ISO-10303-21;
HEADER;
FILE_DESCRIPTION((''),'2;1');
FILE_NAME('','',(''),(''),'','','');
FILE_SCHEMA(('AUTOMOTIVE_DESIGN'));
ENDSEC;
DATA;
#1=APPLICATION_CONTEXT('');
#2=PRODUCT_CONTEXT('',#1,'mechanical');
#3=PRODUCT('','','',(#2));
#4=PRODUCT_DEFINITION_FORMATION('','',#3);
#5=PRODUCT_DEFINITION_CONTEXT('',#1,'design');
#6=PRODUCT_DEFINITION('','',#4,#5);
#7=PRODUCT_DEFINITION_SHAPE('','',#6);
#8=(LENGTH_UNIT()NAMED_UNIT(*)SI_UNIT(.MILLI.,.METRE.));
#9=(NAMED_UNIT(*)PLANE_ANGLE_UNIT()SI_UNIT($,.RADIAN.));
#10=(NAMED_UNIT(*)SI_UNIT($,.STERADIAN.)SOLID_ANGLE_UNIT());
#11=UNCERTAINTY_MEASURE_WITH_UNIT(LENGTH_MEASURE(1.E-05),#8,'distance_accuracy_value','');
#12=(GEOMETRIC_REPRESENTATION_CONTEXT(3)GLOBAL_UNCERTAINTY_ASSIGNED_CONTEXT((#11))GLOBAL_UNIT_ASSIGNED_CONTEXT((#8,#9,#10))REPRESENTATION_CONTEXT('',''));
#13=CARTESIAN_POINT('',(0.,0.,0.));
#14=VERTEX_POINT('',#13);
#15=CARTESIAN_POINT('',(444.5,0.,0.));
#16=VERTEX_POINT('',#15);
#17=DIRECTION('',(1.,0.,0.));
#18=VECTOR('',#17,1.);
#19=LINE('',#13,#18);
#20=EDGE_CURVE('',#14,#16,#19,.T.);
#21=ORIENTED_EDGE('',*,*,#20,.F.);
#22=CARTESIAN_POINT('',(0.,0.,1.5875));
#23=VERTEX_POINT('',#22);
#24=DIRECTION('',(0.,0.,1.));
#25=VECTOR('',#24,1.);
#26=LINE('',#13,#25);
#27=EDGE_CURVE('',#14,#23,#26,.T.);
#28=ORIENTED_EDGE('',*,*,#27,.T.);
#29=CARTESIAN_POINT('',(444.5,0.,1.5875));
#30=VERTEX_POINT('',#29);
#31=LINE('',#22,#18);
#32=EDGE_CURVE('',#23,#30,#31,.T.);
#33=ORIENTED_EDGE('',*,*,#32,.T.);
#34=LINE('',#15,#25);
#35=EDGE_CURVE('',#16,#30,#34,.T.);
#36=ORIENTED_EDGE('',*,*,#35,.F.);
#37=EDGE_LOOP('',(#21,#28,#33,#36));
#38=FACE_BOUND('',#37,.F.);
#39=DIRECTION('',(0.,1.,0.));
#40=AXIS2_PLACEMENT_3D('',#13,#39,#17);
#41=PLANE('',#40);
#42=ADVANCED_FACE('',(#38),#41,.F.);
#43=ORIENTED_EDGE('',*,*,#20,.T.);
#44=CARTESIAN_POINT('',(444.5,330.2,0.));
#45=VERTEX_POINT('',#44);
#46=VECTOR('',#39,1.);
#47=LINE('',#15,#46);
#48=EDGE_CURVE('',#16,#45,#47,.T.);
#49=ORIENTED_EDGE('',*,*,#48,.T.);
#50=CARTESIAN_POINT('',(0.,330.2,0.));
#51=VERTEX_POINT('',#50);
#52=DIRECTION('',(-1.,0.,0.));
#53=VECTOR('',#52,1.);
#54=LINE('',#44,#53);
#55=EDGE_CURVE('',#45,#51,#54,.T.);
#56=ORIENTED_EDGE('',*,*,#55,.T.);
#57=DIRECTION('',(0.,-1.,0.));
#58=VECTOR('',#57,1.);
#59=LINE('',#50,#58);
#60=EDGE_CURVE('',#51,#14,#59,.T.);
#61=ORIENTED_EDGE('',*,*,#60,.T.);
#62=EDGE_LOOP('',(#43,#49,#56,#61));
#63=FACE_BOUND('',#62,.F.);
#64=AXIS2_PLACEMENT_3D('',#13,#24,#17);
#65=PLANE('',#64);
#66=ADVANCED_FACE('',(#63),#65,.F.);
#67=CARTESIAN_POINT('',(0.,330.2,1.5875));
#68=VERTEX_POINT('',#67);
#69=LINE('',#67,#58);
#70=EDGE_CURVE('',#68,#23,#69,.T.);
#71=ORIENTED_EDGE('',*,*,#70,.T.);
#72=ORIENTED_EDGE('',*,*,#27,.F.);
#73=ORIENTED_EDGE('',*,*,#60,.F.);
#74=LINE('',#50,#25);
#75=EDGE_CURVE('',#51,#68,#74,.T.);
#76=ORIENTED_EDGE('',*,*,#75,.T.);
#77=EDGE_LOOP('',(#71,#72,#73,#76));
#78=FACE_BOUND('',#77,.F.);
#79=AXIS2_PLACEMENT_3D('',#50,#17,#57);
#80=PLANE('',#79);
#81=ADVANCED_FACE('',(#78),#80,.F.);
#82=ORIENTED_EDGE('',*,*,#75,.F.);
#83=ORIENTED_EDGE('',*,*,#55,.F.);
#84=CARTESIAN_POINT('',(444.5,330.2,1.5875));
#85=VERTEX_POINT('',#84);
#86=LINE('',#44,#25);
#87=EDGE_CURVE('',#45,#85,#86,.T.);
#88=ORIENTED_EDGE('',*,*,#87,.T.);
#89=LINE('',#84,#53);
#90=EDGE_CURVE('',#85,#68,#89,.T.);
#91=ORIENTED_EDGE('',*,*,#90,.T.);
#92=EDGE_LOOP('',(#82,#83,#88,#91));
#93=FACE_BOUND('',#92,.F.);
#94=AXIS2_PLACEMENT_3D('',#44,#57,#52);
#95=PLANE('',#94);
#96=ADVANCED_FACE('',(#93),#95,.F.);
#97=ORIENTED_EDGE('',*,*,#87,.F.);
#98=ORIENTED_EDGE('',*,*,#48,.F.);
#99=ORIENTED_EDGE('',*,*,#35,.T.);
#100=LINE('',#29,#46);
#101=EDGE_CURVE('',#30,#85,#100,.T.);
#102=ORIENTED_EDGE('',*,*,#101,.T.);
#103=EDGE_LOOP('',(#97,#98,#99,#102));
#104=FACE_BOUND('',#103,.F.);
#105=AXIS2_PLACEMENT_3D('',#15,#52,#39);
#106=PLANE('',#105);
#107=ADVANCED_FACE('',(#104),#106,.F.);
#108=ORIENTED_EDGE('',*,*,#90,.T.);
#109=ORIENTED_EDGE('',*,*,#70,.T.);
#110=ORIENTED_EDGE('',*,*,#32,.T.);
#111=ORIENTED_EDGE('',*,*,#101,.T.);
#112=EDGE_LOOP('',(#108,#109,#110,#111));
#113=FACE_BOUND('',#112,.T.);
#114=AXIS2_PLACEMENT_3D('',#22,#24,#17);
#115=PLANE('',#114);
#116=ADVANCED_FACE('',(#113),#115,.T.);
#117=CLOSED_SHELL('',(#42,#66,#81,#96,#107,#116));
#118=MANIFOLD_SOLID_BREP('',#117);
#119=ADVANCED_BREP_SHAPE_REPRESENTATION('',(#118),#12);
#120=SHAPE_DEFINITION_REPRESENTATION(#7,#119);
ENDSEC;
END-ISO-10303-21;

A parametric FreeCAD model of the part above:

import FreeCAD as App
import Part
import Sketcher

V = App.Vector
Q = App.Units.Quantity


def add_polygon(sketch, points):
    """Adds a closed chain of lines whose ends are joined by coincident constraints."""
    first, n = sketch.GeometryCount, len(points)
    for a, b in zip(points, points[1:] + points[:1]):
        sketch.addGeometry(Part.LineSegment(App.Vector(*a, 0), App.Vector(*b, 0)), False)
    for i in range(n):
        sketch.addConstraint(Sketcher.Constraint("Coincident", first + i, 2, first + (i + 1) % n, 1))

doc = App.newDocument("Part")
body = doc.addObject("PartDesign::Body", "Body")

sketch1 = body.newObject("Sketcher::SketchObject", "Sketch")
sketch1.AttachmentSupport = (doc.getObject("XY_Plane"), [""])
sketch1.MapMode = "FlatFace"
add_polygon(sketch1, [(0, 330), (0, 0), (444, 0), (444, 330)])
sketch1.addConstraint([
    Sketcher.Constraint("Vertical", 0),
    Sketcher.Constraint("Horizontal", 1),
    Sketcher.Constraint("Vertical", 2),
    Sketcher.Constraint("Horizontal", 3),
    Sketcher.Constraint("Coincident", 0, 2, -1, 1),
    Sketcher.Constraint("DistanceY", 0, 2, 0, 1, Q("13 in")),
    Sketcher.Constraint("DistanceX", 1, 1, 1, 2, Q("17.5 in")),
])
pad1 = body.newObject("PartDesign::Pad", "Pad")
pad1.Profile = sketch1
pad1.Length = Q("0.0625 in")

doc.recompute()
